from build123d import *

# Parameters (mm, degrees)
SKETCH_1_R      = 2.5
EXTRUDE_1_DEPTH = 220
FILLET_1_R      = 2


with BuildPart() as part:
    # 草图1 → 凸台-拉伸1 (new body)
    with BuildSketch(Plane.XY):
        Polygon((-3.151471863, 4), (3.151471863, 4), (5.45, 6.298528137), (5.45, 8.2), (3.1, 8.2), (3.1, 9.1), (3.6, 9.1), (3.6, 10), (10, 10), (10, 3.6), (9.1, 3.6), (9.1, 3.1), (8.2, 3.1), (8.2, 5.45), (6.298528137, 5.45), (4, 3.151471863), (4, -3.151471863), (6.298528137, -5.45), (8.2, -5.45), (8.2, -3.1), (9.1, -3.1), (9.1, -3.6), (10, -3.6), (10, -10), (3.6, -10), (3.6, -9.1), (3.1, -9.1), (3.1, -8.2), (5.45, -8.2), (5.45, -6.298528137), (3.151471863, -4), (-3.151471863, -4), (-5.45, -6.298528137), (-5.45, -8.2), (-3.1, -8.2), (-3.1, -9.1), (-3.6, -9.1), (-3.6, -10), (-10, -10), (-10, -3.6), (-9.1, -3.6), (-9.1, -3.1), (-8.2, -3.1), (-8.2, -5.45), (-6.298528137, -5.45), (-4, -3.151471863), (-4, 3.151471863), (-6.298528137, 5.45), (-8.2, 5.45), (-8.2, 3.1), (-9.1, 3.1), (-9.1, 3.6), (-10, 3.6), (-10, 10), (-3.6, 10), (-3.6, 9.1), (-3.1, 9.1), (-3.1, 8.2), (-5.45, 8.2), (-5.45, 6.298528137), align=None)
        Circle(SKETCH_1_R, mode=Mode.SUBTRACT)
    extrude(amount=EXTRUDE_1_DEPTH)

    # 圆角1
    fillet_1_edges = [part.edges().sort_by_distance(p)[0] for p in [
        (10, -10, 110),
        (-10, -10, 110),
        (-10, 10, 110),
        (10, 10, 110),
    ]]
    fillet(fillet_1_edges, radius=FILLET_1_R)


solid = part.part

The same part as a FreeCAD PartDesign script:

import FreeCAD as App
import Part
import Sketcher
Q = App.Units.Quantity


def edges_at(feature, points):
    """Names of the edges that pass closest to the given points."""
    edges = feature.Shape.Edges
    near = lambda p: min(range(len(edges)), key=lambda i: edges[i].distToShape(Part.Vertex(*p))[0])
    return sorted({f"Edge{near(p) + 1}" for p in points})

doc = App.newDocument("Part")
body = doc.addObject("PartDesign::Body", "Body")

sketch1 = body.newObject("Sketcher::SketchObject", "Sketch")
sketch1.AttachmentSupport = (doc.getObject("XY_Plane"), [""])
sketch1.MapMode = "FlatFace"
sketch1.addGeometry(Part.LineSegment(App.Vector(3.151472, 4, 0), App.Vector(-3.151472, 4, 0)), False)
sketch1.addGeometry(Part.LineSegment(App.Vector(-3.151472, 4, 0), App.Vector(-5.45, 6.298528, 0)), False)
sketch1.addGeometry(Part.LineSegment(App.Vector(-5.45, 6.298528, 0), App.Vector(-5.45, 8.2, 0)), False)
sketch1.addGeometry(Part.LineSegment(App.Vector(-5.45, 8.2, 0), App.Vector(-3.1, 8.2, 0)), False)
sketch1.addGeometry(Part.LineSegment(App.Vector(-3.1, 8.2, 0), App.Vector(-3.1, 9.1, 0)), False)
sketch1.addGeometry(Part.LineSegment(App.Vector(-3.1, 9.1, 0), App.Vector(-3.6, 9.1, 0)), False)
sketch1.addGeometry(Part.LineSegment(App.Vector(-3.6, 9.1, 0), App.Vector(-3.6, 10, 0)), False)
sketch1.addGeometry(Part.LineSegment(App.Vector(-3.6, 10, 0), App.Vector(-10, 10, 0)), False)
sketch1.addGeometry(Part.LineSegment(App.Vector(-10, 10, 0), App.Vector(-10, 3.6, 0)), False)
sketch1.addGeometry(Part.LineSegment(App.Vector(-10, 3.6, 0), App.Vector(-9.1, 3.6, 0)), False)
sketch1.addGeometry(Part.LineSegment(App.Vector(-9.1, 3.6, 0), App.Vector(-9.1, 3.1, 0)), False)
sketch1.addGeometry(Part.LineSegment(App.Vector(-9.1, 3.1, 0), App.Vector(-8.2, 3.1, 0)), False)
sketch1.addGeometry(Part.LineSegment(App.Vector(-8.2, 3.1, 0), App.Vector(-8.2, 5.45, 0)), False)
sketch1.addGeometry(Part.LineSegment(App.Vector(-8.2, 5.45, 0), App.Vector(-6.298528, 5.45, 0)), False)
sketch1.addGeometry(Part.LineSegment(App.Vector(-6.298528, 5.45, 0), App.Vector(-4, 3.151472, 0)), False)
sketch1.addGeometry(Part.LineSegment(App.Vector(-4, 3.151472, 0), App.Vector(-4, -3.151472, 0)), False)
sketch1.addGeometry(Part.LineSegment(App.Vector(-4, -3.151472, 0), App.Vector(-6.298528, -5.45, 0)), False)
sketch1.addGeometry(Part.LineSegment(App.Vector(-6.298528, -5.45, 0), App.Vector(-8.2, -5.45, 0)), False)
sketch1.addGeometry(Part.LineSegment(App.Vector(-8.2, -5.45, 0), App.Vector(-8.2, -3.1, 0)), False)
sketch1.addGeometry(Part.LineSegment(App.Vector(-8.2, -3.1, 0), App.Vector(-9.1, -3.1, 0)), False)
sketch1.addGeometry(Part.LineSegment(App.Vector(-9.1, -3.1, 0), App.Vector(-9.1, -3.6, 0)), False)
sketch1.addGeometry(Part.LineSegment(App.Vector(-9.1, -3.6, 0), App.Vector(-10, -3.6, 0)), False)
sketch1.addGeometry(Part.LineSegment(App.Vector(-10, -3.6, 0), App.Vector(-10, -10, 0)), False)
sketch1.addGeometry(Part.LineSegment(App.Vector(-10, -10, 0), App.Vector(-3.6, -10, 0)), False)
sketch1.addGeometry(Part.LineSegment(App.Vector(-3.6, -10, 0), App.Vector(-3.6, -9.1, 0)), False)
sketch1.addGeometry(Part.LineSegment(App.Vector(-3.6, -9.1, 0), App.Vector(-3.1, -9.1, 0)), False)
sketch1.addGeometry(Part.LineSegment(App.Vector(-3.1, -9.1, 0), App.Vector(-3.1, -8.2, 0)), False)
sketch1.addGeometry(Part.LineSegment(App.Vector(-3.1, -8.2, 0), App.Vector(-5.45, -8.2, 0)), False)
sketch1.addGeometry(Part.LineSegment(App.Vector(-5.45, -8.2, 0), App.Vector(-5.45, -6.298528, 0)), False)
sketch1.addGeometry(Part.LineSegment(App.Vector(-5.45, -6.298528, 0), App.Vector(-3.151472, -4, 0)), False)
sketch1.addGeometry(Part.LineSegment(App.Vector(-3.151472, -4, 0), App.Vector(3.151472, -4, 0)), False)
sketch1.addGeometry(Part.LineSegment(App.Vector(3.151472, -4, 0), App.Vector(5.45, -6.298528, 0)), False)
sketch1.addGeometry(Part.LineSegment(App.Vector(5.45, -6.298528, 0), App.Vector(5.45, -8.2, 0)), False)
sketch1.addGeometry(Part.LineSegment(App.Vector(5.45, -8.2, 0), App.Vector(3.1, -8.2, 0)), False)
sketch1.addGeometry(Part.LineSegment(App.Vector(3.1, -8.2, 0), App.Vector(3.1, -9.1, 0)), False)
sketch1.addGeometry(Part.LineSegment(App.Vector(3.1, -9.1, 0), App.Vector(3.6, -9.1, 0)), False)
sketch1.addGeometry(Part.LineSegment(App.Vector(3.6, -9.1, 0), App.Vector(3.6, -10, 0)), False)
sketch1.addGeometry(Part.LineSegment(App.Vector(3.6, -10, 0), App.Vector(10, -10, 0)), False)
sketch1.addGeometry(Part.LineSegment(App.Vector(10, -10, 0), App.Vector(10, -3.6, 0)), False)
sketch1.addGeometry(Part.LineSegment(App.Vector(10, -3.6, 0), App.Vector(9.1, -3.6, 0)), False)
sketch1.addGeometry(Part.LineSegment(App.Vector(9.1, -3.6, 0), App.Vector(9.1, -3.1, 0)), False)
sketch1.addGeometry(Part.LineSegment(App.Vector(9.1, -3.1, 0), App.Vector(8.2, -3.1, 0)), False)
sketch1.addGeometry(Part.LineSegment(App.Vector(8.2, -3.1, 0), App.Vector(8.2, -5.45, 0)), False)
sketch1.addGeometry(Part.LineSegment(App.Vector(8.2, -5.45, 0), App.Vector(6.298528, -5.45, 0)), False)
sketch1.addGeometry(Part.LineSegment(App.Vector(6.298528, -5.45, 0), App.Vector(4, -3.151472, 0)), False)
sketch1.addGeometry(Part.LineSegment(App.Vector(4, -3.151472, 0), App.Vector(4, 3.151472, 0)), False)
sketch1.addGeometry(Part.LineSegment(App.Vector(4, 3.151472, 0), App.Vector(6.298528, 5.45, 0)), False)
sketch1.addGeometry(Part.LineSegment(App.Vector(6.298528, 5.45, 0), App.Vector(8.2, 5.45, 0)), False)
sketch1.addGeometry(Part.LineSegment(App.Vector(8.2, 5.45, 0), App.Vector(8.2, 3.1, 0)), False)
sketch1.addGeometry(Part.LineSegment(App.Vector(8.2, 3.1, 0), App.Vector(9.1, 3.1, 0)), False)
sketch1.addGeometry(Part.LineSegment(App.Vector(9.1, 3.1, 0), App.Vector(9.1, 3.6, 0)), False)
sketch1.addGeometry(Part.LineSegment(App.Vector(9.1, 3.6, 0), App.Vector(10, 3.6, 0)), False)
sketch1.addGeometry(Part.LineSegment(App.Vector(10, 3.6, 0), App.Vector(10, 10, 0)), False)
sketch1.addGeometry(Part.LineSegment(App.Vector(10, 10, 0), App.Vector(3.6, 10, 0)), False)
sketch1.addGeometry(Part.LineSegment(App.Vector(3.6, 10, 0), App.Vector(3.6, 9.1, 0)), False)
sketch1.addGeometry(Part.LineSegment(App.Vector(3.6, 9.1, 0), App.Vector(3.1, 9.1, 0)), False)
sketch1.addGeometry(Part.LineSegment(App.Vector(3.1, 9.1, 0), App.Vector(3.1, 8.2, 0)), False)
sketch1.addGeometry(Part.LineSegment(App.Vector(3.1, 8.2, 0), App.Vector(5.45, 8.2, 0)), False)
sketch1.addGeometry(Part.LineSegment(App.Vector(5.45, 8.2, 0), App.Vector(5.45, 6.298528, 0)), False)
sketch1.addGeometry(Part.LineSegment(App.Vector(5.45, 6.298528, 0), App.Vector(3.151472, 4, 0)), False)
sketch1.addGeometry(Part.Circle(App.Vector(0, 0, 0), App.Vector(0, 0, 1), 2.5), False)
sketch1.addConstraint(Sketcher.Constraint("Coincident", 0, 2, 1, 1))
sketch1.addConstraint(Sketcher.Constraint("Coincident", 1, 2, 2, 1))
sketch1.addConstraint(Sketcher.Constraint("Coincident", 2, 2, 3, 1))
sketch1.addConstraint(Sketcher.Constraint("Coincident", 3, 2, 4, 1))
sketch1.addConstraint(Sketcher.Constraint("Coincident", 4, 2, 5, 1))
sketch1.addConstraint(Sketcher.Constraint("Coincident", 5, 2, 6, 1))
sketch1.addConstraint(Sketcher.Constraint("Coincident", 6, 2, 7, 1))
sketch1.addConstraint(Sketcher.Constraint("Coincident", 7, 2, 8, 1))
sketch1.addConstraint(Sketcher.Constraint("Coincident", 8, 2, 9, 1))
sketch1.addConstraint(Sketcher.Constraint("Coincident", 9, 2, 10, 1))
sketch1.addConstraint(Sketcher.Constraint("Coincident", 10, 2, 11, 1))
sketch1.addConstraint(Sketcher.Constraint("Coincident", 11, 2, 12, 1))
sketch1.addConstraint(Sketcher.Constraint("Coincident", 12, 2, 13, 1))
sketch1.addConstraint(Sketcher.Constraint("Coincident", 13, 2, 14, 1))
sketch1.addConstraint(Sketcher.Constraint("Coincident", 14, 2, 15, 1))
sketch1.addConstraint(Sketcher.Constraint("Coincident", 15, 2, 16, 1))
sketch1.addConstraint(Sketcher.Constraint("Coincident", 16, 2, 17, 1))
sketch1.addConstraint(Sketcher.Constraint("Coincident", 17, 2, 18, 1))
sketch1.addConstraint(Sketcher.Constraint("Coincident", 18, 2, 19, 1))
sketch1.addConstraint(Sketcher.Constraint("Coincident", 19, 2, 20, 1))
sketch1.addConstraint(Sketcher.Constraint("Coincident", 20, 2, 21, 1))
sketch1.addConstraint(Sketcher.Constraint("Coincident", 21, 2, 22, 1))
sketch1.addConstraint(Sketcher.Constraint("Coincident", 22, 2, 23, 1))
sketch1.addConstraint(Sketcher.Constraint("Coincident", 23, 2, 24, 1))
sketch1.addConstraint(Sketcher.Constraint("Coincident", 24, 2, 25, 1))
sketch1.addConstraint(Sketcher.Constraint("Coincident", 25, 2, 26, 1))
sketch1.addConstraint(Sketcher.Constraint("Coincident", 26, 2, 27, 1))
sketch1.addConstraint(Sketcher.Constraint("Coincident", 27, 2, 28, 1))
sketch1.addConstraint(Sketcher.Constraint("Coincident", 28, 2, 29, 1))
sketch1.addConstraint(Sketcher.Constraint("Coincident", 29, 2, 30, 1))
sketch1.addConstraint(Sketcher.Constraint("Coincident", 30, 2, 31, 1))
sketch1.addConstraint(Sketcher.Constraint("Coincident", 31, 2, 32, 1))
sketch1.addConstraint(Sketcher.Constraint("Coincident", 32, 2, 33, 1))
sketch1.addConstraint(Sketcher.Constraint("Coincident", 33, 2, 34, 1))
sketch1.addConstraint(Sketcher.Constraint("Coincident", 34, 2, 35, 1))
sketch1.addConstraint(Sketcher.Constraint("Coincident", 35, 2, 36, 1))
sketch1.addConstraint(Sketcher.Constraint("Coincident", 36, 2, 37, 1))
sketch1.addConstraint(Sketcher.Constraint("Coincident", 37, 2, 38, 1))
sketch1.addConstraint(Sketcher.Constraint("Coincident", 38, 2, 39, 1))
sketch1.addConstraint(Sketcher.Constraint("Coincident", 39, 2, 40, 1))
sketch1.addConstraint(Sketcher.Constraint("Coincident", 40, 2, 41, 1))
sketch1.addConstraint(Sketcher.Constraint("Coincident", 41, 2, 42, 1))
sketch1.addConstraint(Sketcher.Constraint("Coincident", 42, 2, 43, 1))
sketch1.addConstraint(Sketcher.Constraint("Coincident", 43, 2, 44, 1))
sketch1.addConstraint(Sketcher.Constraint("Coincident", 44, 2, 45, 1))
sketch1.addConstraint(Sketcher.Constraint("Coincident", 45, 2, 46, 1))
sketch1.addConstraint(Sketcher.Constraint("Coincident", 46, 2, 47, 1))
sketch1.addConstraint(Sketcher.Constraint("Coincident", 47, 2, 48, 1))
sketch1.addConstraint(Sketcher.Constraint("Coincident", 48, 2, 49, 1))
sketch1.addConstraint(Sketcher.Constraint("Coincident", 49, 2, 50, 1))
sketch1.addConstraint(Sketcher.Constraint("Coincident", 50, 2, 51, 1))
sketch1.addConstraint(Sketcher.Constraint("Coincident", 51, 2, 52, 1))
sketch1.addConstraint(Sketcher.Constraint("Coincident", 52, 2, 53, 1))
sketch1.addConstraint(Sketcher.Constraint("Coincident", 53, 2, 54, 1))
sketch1.addConstraint(Sketcher.Constraint("Coincident", 54, 2, 55, 1))
sketch1.addConstraint(Sketcher.Constraint("Coincident", 55, 2, 56, 1))
sketch1.addConstraint(Sketcher.Constraint("Coincident", 56, 2, 57, 1))
sketch1.addConstraint(Sketcher.Constraint("Coincident", 57, 2, 58, 1))
sketch1.addConstraint(Sketcher.Constraint("Coincident", 58, 2, 59, 1))
sketch1.addConstraint(Sketcher.Constraint("Coincident", 59, 2, 0, 1))
sketch1.addConstraint(Sketcher.Constraint("Horizontal", 0))
sketch1.addConstraint(Sketcher.Constraint("Vertical", 2))
sketch1.addConstraint(Sketcher.Constraint("Horizontal", 3))
sketch1.addConstraint(Sketcher.Constraint("Vertical", 4))
sketch1.addConstraint(Sketcher.Constraint("Horizontal", 5))
sketch1.addConstraint(Sketcher.Constraint("Vertical", 6))
sketch1.addConstraint(Sketcher.Constraint("Horizontal", 7))
sketch1.addConstraint(Sketcher.Constraint("Vertical", 8))
sketch1.addConstraint(Sketcher.Constraint("Horizontal", 9))
sketch1.addConstraint(Sketcher.Constraint("Vertical", 10))
sketch1.addConstraint(Sketcher.Constraint("Horizontal", 11))
sketch1.addConstraint(Sketcher.Constraint("Vertical", 12))
sketch1.addConstraint(Sketcher.Constraint("Horizontal", 13))
sketch1.addConstraint(Sketcher.Constraint("Vertical", 15))
sketch1.addConstraint(Sketcher.Constraint("Horizontal", 17))
sketch1.addConstraint(Sketcher.Constraint("Vertical", 18))
sketch1.addConstraint(Sketcher.Constraint("Horizontal", 19))
sketch1.addConstraint(Sketcher.Constraint("Vertical", 20))
sketch1.addConstraint(Sketcher.Constraint("Horizontal", 21))
sketch1.addConstraint(Sketcher.Constraint("Vertical", 22))
sketch1.addConstraint(Sketcher.Constraint("Horizontal", 23))
sketch1.addConstraint(Sketcher.Constraint("Vertical", 24))
sketch1.addConstraint(Sketcher.Constraint("Horizontal", 25))
sketch1.addConstraint(Sketcher.Constraint("Vertical", 26))
sketch1.addConstraint(Sketcher.Constraint("Horizontal", 27))
sketch1.addConstraint(Sketcher.Constraint("Vertical", 28))
sketch1.addConstraint(Sketcher.Constraint("Horizontal", 30))
sketch1.addConstraint(Sketcher.Constraint("Vertical", 32))
sketch1.addConstraint(Sketcher.Constraint("Horizontal", 33))
sketch1.addConstraint(Sketcher.Constraint("Vertical", 34))
sketch1.addConstraint(Sketcher.Constraint("Horizontal", 35))
sketch1.addConstraint(Sketcher.Constraint("Vertical", 36))
sketch1.addConstraint(Sketcher.Constraint("Horizontal", 37))
sketch1.addConstraint(Sketcher.Constraint("Vertical", 38))
sketch1.addConstraint(Sketcher.Constraint("Horizontal", 39))
sketch1.addConstraint(Sketcher.Constraint("Vertical", 40))
sketch1.addConstraint(Sketcher.Constraint("Horizontal", 41))
sketch1.addConstraint(Sketcher.Constraint("Vertical", 42))
sketch1.addConstraint(Sketcher.Constraint("Horizontal", 43))
sketch1.addConstraint(Sketcher.Constraint("Vertical", 45))
sketch1.addConstraint(Sketcher.Constraint("Horizontal", 47))
sketch1.addConstraint(Sketcher.Constraint("Vertical", 48))
sketch1.addConstraint(Sketcher.Constraint("Horizontal", 49))
sketch1.addConstraint(Sketcher.Constraint("Vertical", 50))
sketch1.addConstraint(Sketcher.Constraint("Horizontal", 51))
sketch1.addConstraint(Sketcher.Constraint("Vertical", 52))
sketch1.addConstraint(Sketcher.Constraint("Horizontal", 53))
sketch1.addConstraint(Sketcher.Constraint("Vertical", 54))
sketch1.addConstraint(Sketcher.Constraint("Horizontal", 55))
sketch1.addConstraint(Sketcher.Constraint("Vertical", 56))
sketch1.addConstraint(Sketcher.Constraint("Horizontal", 57))
sketch1.addConstraint(Sketcher.Constraint("Vertical", 58))
sketch1.addConstraint(Sketcher.Constraint("Coincident", 60, 3, -1, 1))
sketch1.addConstraint(Sketcher.Constraint("Symmetric", 0, 2, 30, 2, -1, 1))
sketch1.addConstraint(Sketcher.Constraint("Symmetric", 1, 2, 31, 2, -1, 1))
sketch1.addConstraint(Sketcher.Constraint("Symmetric", 3, 2, 33, 2, -1, 1))
sketch1.addConstraint(Sketcher.Constraint("Symmetric", 5, 2, 35, 2, -1, 1))
sketch1.addConstraint(Sketcher.Constraint("Symmetric", 7, 2, 37, 2, -1, 1))
sketch1.addConstraint(Sketcher.Constraint("Symmetric", 9, 2, 39, 2, -1, 1))
sketch1.addConstraint(Sketcher.Constraint("Symmetric", 11, 2, 41, 2, -1, 1))
sketch1.addConstraint(Sketcher.Constraint("Symmetric", 13, 2, 43, 2, -1, 1))
sketch1.addConstraint(Sketcher.Constraint("Symmetric", 14, 2, 44, 2, -1, 1))
sketch1.addConstraint(Sketcher.Constraint("Symmetric", 16, 2, 46, 2, -1, 1))
sketch1.addConstraint(Sketcher.Constraint("Symmetric", 18, 2, 48, 2, -1, 1))
sketch1.addConstraint(Sketcher.Constraint("Symmetric", 20, 2, 50, 2, -1, 1))
sketch1.addConstraint(Sketcher.Constraint("Symmetric", 22, 2, 52, 2, -1, 1))
sketch1.addConstraint(Sketcher.Constraint("Symmetric", 24, 2, 54, 2, -1, 1))
sketch1.addConstraint(Sketcher.Constraint("Symmetric", 26, 2, 56, 2, -1, 1))
sketch1.addConstraint(Sketcher.Constraint("Symmetric", 28, 2, 58, 2, -1, 1))
sketch1.addConstraint(Sketcher.Constraint("Symmetric", 28, 2, 31, 2, -2))
sketch1.addConstraint(Sketcher.Constraint("Symmetric", 26, 2, 33, 2, -2))
sketch1.addConstraint(Sketcher.Constraint("Symmetric", 24, 2, 35, 2, -2))
sketch1.addConstraint(Sketcher.Constraint("Symmetric", 22, 2, 37, 2, -2))
sketch1.addConstraint(Sketcher.Constraint("Symmetric", 20, 2, 39, 2, -2))
sketch1.addConstraint(Sketcher.Constraint("Symmetric", 18, 2, 41, 2, -2))
sketch1.addConstraint(Sketcher.Constraint("Symmetric", 16, 2, 43, 2, -2))
sketch1.addConstraint(Sketcher.Constraint("Parallel", 1, 14))
sketch1.addConstraint(Sketcher.Constraint("Perpendicular", 14, 16))
sketch1.addConstraint(Sketcher.Constraint("Parallel", 16, 29))
sketch1.addConstraint(Sketcher.Constraint("Perpendicular", 44, 46))
sketch1.addConstraint(Sketcher.Constraint("Parallel", 46, 59))
sketch1.addConstraint(Sketcher.Constraint("Horizontal", 15, 2, 44, 2))
sketch1.addConstraint(Sketcher.Constraint("Equal", 9, 11))
sketch1.addConstraint(Sketcher.Constraint("Equal", 47, 2))
sketch1.addConstraint(Sketcher.Constraint("Equal", 51, 4))
sketch1.addConstraint(Sketcher.Constraint("Equal", 4, 6))
sketch1.addConstraint(Sketcher.Constraint("Equal", 53, 8))
sketch1.addConstraint(Sketcher.Constraint("Equal", 55, 10))
sketch1.addConstraint(Sketcher.Constraint("Equal", 57, 12))
sketch1.addConstraint(Sketcher.Constraint("Equal", 30, 15))
sketch1.addConstraint(Sketcher.Constraint("Equal", 1, 14))
sketch1.addConstraint(Sketcher.Constraint("Diameter", 60, Q("5 mm")))
sketch1.addConstraint(Sketcher.Constraint("DistanceX", 5, 2, 5, 1, Q("0.5 mm")))
sketch1.addConstraint(Sketcher.Constraint("DistanceX", 7, 2, 7, 1, Q("6.4 mm")))
sketch1.addConstraint(Sketcher.Constraint("DistanceX", 9, 1, 9, 2, Q("0.9 mm")))
sketch1.addConstraint(Sketcher.Constraint("DistanceY", -1, 1, 0, 2, Q("4 mm")))
sketch1.addConstraint(Sketcher.Constraint("DistanceY", -1, 1, 6, 2, Q("10 mm")))
sketch1.addConstraint(Sketcher.Constraint("DistanceX", 3, 1, 3, 2, Q("2.35 mm")))
sketch1.addConstraint(Sketcher.Constraint("DistanceX", 13, 1, 13, 2, Q("1.901472 mm")))
pad1 = body.newObject("PartDesign::Pad", "Pad")
pad1.Profile = sketch1
pad1.Length = 220
doc.recompute()

fillet = body.newObject("PartDesign::Fillet", "Fillet")
fillet.Base = (pad1, edges_at(pad1, [
    (10, -10, 110),
    (-10, -10, 110),
    (-10, 10, 110),
    (10, 10, 110),
]))
fillet.Radius = 2

doc.recompute()
